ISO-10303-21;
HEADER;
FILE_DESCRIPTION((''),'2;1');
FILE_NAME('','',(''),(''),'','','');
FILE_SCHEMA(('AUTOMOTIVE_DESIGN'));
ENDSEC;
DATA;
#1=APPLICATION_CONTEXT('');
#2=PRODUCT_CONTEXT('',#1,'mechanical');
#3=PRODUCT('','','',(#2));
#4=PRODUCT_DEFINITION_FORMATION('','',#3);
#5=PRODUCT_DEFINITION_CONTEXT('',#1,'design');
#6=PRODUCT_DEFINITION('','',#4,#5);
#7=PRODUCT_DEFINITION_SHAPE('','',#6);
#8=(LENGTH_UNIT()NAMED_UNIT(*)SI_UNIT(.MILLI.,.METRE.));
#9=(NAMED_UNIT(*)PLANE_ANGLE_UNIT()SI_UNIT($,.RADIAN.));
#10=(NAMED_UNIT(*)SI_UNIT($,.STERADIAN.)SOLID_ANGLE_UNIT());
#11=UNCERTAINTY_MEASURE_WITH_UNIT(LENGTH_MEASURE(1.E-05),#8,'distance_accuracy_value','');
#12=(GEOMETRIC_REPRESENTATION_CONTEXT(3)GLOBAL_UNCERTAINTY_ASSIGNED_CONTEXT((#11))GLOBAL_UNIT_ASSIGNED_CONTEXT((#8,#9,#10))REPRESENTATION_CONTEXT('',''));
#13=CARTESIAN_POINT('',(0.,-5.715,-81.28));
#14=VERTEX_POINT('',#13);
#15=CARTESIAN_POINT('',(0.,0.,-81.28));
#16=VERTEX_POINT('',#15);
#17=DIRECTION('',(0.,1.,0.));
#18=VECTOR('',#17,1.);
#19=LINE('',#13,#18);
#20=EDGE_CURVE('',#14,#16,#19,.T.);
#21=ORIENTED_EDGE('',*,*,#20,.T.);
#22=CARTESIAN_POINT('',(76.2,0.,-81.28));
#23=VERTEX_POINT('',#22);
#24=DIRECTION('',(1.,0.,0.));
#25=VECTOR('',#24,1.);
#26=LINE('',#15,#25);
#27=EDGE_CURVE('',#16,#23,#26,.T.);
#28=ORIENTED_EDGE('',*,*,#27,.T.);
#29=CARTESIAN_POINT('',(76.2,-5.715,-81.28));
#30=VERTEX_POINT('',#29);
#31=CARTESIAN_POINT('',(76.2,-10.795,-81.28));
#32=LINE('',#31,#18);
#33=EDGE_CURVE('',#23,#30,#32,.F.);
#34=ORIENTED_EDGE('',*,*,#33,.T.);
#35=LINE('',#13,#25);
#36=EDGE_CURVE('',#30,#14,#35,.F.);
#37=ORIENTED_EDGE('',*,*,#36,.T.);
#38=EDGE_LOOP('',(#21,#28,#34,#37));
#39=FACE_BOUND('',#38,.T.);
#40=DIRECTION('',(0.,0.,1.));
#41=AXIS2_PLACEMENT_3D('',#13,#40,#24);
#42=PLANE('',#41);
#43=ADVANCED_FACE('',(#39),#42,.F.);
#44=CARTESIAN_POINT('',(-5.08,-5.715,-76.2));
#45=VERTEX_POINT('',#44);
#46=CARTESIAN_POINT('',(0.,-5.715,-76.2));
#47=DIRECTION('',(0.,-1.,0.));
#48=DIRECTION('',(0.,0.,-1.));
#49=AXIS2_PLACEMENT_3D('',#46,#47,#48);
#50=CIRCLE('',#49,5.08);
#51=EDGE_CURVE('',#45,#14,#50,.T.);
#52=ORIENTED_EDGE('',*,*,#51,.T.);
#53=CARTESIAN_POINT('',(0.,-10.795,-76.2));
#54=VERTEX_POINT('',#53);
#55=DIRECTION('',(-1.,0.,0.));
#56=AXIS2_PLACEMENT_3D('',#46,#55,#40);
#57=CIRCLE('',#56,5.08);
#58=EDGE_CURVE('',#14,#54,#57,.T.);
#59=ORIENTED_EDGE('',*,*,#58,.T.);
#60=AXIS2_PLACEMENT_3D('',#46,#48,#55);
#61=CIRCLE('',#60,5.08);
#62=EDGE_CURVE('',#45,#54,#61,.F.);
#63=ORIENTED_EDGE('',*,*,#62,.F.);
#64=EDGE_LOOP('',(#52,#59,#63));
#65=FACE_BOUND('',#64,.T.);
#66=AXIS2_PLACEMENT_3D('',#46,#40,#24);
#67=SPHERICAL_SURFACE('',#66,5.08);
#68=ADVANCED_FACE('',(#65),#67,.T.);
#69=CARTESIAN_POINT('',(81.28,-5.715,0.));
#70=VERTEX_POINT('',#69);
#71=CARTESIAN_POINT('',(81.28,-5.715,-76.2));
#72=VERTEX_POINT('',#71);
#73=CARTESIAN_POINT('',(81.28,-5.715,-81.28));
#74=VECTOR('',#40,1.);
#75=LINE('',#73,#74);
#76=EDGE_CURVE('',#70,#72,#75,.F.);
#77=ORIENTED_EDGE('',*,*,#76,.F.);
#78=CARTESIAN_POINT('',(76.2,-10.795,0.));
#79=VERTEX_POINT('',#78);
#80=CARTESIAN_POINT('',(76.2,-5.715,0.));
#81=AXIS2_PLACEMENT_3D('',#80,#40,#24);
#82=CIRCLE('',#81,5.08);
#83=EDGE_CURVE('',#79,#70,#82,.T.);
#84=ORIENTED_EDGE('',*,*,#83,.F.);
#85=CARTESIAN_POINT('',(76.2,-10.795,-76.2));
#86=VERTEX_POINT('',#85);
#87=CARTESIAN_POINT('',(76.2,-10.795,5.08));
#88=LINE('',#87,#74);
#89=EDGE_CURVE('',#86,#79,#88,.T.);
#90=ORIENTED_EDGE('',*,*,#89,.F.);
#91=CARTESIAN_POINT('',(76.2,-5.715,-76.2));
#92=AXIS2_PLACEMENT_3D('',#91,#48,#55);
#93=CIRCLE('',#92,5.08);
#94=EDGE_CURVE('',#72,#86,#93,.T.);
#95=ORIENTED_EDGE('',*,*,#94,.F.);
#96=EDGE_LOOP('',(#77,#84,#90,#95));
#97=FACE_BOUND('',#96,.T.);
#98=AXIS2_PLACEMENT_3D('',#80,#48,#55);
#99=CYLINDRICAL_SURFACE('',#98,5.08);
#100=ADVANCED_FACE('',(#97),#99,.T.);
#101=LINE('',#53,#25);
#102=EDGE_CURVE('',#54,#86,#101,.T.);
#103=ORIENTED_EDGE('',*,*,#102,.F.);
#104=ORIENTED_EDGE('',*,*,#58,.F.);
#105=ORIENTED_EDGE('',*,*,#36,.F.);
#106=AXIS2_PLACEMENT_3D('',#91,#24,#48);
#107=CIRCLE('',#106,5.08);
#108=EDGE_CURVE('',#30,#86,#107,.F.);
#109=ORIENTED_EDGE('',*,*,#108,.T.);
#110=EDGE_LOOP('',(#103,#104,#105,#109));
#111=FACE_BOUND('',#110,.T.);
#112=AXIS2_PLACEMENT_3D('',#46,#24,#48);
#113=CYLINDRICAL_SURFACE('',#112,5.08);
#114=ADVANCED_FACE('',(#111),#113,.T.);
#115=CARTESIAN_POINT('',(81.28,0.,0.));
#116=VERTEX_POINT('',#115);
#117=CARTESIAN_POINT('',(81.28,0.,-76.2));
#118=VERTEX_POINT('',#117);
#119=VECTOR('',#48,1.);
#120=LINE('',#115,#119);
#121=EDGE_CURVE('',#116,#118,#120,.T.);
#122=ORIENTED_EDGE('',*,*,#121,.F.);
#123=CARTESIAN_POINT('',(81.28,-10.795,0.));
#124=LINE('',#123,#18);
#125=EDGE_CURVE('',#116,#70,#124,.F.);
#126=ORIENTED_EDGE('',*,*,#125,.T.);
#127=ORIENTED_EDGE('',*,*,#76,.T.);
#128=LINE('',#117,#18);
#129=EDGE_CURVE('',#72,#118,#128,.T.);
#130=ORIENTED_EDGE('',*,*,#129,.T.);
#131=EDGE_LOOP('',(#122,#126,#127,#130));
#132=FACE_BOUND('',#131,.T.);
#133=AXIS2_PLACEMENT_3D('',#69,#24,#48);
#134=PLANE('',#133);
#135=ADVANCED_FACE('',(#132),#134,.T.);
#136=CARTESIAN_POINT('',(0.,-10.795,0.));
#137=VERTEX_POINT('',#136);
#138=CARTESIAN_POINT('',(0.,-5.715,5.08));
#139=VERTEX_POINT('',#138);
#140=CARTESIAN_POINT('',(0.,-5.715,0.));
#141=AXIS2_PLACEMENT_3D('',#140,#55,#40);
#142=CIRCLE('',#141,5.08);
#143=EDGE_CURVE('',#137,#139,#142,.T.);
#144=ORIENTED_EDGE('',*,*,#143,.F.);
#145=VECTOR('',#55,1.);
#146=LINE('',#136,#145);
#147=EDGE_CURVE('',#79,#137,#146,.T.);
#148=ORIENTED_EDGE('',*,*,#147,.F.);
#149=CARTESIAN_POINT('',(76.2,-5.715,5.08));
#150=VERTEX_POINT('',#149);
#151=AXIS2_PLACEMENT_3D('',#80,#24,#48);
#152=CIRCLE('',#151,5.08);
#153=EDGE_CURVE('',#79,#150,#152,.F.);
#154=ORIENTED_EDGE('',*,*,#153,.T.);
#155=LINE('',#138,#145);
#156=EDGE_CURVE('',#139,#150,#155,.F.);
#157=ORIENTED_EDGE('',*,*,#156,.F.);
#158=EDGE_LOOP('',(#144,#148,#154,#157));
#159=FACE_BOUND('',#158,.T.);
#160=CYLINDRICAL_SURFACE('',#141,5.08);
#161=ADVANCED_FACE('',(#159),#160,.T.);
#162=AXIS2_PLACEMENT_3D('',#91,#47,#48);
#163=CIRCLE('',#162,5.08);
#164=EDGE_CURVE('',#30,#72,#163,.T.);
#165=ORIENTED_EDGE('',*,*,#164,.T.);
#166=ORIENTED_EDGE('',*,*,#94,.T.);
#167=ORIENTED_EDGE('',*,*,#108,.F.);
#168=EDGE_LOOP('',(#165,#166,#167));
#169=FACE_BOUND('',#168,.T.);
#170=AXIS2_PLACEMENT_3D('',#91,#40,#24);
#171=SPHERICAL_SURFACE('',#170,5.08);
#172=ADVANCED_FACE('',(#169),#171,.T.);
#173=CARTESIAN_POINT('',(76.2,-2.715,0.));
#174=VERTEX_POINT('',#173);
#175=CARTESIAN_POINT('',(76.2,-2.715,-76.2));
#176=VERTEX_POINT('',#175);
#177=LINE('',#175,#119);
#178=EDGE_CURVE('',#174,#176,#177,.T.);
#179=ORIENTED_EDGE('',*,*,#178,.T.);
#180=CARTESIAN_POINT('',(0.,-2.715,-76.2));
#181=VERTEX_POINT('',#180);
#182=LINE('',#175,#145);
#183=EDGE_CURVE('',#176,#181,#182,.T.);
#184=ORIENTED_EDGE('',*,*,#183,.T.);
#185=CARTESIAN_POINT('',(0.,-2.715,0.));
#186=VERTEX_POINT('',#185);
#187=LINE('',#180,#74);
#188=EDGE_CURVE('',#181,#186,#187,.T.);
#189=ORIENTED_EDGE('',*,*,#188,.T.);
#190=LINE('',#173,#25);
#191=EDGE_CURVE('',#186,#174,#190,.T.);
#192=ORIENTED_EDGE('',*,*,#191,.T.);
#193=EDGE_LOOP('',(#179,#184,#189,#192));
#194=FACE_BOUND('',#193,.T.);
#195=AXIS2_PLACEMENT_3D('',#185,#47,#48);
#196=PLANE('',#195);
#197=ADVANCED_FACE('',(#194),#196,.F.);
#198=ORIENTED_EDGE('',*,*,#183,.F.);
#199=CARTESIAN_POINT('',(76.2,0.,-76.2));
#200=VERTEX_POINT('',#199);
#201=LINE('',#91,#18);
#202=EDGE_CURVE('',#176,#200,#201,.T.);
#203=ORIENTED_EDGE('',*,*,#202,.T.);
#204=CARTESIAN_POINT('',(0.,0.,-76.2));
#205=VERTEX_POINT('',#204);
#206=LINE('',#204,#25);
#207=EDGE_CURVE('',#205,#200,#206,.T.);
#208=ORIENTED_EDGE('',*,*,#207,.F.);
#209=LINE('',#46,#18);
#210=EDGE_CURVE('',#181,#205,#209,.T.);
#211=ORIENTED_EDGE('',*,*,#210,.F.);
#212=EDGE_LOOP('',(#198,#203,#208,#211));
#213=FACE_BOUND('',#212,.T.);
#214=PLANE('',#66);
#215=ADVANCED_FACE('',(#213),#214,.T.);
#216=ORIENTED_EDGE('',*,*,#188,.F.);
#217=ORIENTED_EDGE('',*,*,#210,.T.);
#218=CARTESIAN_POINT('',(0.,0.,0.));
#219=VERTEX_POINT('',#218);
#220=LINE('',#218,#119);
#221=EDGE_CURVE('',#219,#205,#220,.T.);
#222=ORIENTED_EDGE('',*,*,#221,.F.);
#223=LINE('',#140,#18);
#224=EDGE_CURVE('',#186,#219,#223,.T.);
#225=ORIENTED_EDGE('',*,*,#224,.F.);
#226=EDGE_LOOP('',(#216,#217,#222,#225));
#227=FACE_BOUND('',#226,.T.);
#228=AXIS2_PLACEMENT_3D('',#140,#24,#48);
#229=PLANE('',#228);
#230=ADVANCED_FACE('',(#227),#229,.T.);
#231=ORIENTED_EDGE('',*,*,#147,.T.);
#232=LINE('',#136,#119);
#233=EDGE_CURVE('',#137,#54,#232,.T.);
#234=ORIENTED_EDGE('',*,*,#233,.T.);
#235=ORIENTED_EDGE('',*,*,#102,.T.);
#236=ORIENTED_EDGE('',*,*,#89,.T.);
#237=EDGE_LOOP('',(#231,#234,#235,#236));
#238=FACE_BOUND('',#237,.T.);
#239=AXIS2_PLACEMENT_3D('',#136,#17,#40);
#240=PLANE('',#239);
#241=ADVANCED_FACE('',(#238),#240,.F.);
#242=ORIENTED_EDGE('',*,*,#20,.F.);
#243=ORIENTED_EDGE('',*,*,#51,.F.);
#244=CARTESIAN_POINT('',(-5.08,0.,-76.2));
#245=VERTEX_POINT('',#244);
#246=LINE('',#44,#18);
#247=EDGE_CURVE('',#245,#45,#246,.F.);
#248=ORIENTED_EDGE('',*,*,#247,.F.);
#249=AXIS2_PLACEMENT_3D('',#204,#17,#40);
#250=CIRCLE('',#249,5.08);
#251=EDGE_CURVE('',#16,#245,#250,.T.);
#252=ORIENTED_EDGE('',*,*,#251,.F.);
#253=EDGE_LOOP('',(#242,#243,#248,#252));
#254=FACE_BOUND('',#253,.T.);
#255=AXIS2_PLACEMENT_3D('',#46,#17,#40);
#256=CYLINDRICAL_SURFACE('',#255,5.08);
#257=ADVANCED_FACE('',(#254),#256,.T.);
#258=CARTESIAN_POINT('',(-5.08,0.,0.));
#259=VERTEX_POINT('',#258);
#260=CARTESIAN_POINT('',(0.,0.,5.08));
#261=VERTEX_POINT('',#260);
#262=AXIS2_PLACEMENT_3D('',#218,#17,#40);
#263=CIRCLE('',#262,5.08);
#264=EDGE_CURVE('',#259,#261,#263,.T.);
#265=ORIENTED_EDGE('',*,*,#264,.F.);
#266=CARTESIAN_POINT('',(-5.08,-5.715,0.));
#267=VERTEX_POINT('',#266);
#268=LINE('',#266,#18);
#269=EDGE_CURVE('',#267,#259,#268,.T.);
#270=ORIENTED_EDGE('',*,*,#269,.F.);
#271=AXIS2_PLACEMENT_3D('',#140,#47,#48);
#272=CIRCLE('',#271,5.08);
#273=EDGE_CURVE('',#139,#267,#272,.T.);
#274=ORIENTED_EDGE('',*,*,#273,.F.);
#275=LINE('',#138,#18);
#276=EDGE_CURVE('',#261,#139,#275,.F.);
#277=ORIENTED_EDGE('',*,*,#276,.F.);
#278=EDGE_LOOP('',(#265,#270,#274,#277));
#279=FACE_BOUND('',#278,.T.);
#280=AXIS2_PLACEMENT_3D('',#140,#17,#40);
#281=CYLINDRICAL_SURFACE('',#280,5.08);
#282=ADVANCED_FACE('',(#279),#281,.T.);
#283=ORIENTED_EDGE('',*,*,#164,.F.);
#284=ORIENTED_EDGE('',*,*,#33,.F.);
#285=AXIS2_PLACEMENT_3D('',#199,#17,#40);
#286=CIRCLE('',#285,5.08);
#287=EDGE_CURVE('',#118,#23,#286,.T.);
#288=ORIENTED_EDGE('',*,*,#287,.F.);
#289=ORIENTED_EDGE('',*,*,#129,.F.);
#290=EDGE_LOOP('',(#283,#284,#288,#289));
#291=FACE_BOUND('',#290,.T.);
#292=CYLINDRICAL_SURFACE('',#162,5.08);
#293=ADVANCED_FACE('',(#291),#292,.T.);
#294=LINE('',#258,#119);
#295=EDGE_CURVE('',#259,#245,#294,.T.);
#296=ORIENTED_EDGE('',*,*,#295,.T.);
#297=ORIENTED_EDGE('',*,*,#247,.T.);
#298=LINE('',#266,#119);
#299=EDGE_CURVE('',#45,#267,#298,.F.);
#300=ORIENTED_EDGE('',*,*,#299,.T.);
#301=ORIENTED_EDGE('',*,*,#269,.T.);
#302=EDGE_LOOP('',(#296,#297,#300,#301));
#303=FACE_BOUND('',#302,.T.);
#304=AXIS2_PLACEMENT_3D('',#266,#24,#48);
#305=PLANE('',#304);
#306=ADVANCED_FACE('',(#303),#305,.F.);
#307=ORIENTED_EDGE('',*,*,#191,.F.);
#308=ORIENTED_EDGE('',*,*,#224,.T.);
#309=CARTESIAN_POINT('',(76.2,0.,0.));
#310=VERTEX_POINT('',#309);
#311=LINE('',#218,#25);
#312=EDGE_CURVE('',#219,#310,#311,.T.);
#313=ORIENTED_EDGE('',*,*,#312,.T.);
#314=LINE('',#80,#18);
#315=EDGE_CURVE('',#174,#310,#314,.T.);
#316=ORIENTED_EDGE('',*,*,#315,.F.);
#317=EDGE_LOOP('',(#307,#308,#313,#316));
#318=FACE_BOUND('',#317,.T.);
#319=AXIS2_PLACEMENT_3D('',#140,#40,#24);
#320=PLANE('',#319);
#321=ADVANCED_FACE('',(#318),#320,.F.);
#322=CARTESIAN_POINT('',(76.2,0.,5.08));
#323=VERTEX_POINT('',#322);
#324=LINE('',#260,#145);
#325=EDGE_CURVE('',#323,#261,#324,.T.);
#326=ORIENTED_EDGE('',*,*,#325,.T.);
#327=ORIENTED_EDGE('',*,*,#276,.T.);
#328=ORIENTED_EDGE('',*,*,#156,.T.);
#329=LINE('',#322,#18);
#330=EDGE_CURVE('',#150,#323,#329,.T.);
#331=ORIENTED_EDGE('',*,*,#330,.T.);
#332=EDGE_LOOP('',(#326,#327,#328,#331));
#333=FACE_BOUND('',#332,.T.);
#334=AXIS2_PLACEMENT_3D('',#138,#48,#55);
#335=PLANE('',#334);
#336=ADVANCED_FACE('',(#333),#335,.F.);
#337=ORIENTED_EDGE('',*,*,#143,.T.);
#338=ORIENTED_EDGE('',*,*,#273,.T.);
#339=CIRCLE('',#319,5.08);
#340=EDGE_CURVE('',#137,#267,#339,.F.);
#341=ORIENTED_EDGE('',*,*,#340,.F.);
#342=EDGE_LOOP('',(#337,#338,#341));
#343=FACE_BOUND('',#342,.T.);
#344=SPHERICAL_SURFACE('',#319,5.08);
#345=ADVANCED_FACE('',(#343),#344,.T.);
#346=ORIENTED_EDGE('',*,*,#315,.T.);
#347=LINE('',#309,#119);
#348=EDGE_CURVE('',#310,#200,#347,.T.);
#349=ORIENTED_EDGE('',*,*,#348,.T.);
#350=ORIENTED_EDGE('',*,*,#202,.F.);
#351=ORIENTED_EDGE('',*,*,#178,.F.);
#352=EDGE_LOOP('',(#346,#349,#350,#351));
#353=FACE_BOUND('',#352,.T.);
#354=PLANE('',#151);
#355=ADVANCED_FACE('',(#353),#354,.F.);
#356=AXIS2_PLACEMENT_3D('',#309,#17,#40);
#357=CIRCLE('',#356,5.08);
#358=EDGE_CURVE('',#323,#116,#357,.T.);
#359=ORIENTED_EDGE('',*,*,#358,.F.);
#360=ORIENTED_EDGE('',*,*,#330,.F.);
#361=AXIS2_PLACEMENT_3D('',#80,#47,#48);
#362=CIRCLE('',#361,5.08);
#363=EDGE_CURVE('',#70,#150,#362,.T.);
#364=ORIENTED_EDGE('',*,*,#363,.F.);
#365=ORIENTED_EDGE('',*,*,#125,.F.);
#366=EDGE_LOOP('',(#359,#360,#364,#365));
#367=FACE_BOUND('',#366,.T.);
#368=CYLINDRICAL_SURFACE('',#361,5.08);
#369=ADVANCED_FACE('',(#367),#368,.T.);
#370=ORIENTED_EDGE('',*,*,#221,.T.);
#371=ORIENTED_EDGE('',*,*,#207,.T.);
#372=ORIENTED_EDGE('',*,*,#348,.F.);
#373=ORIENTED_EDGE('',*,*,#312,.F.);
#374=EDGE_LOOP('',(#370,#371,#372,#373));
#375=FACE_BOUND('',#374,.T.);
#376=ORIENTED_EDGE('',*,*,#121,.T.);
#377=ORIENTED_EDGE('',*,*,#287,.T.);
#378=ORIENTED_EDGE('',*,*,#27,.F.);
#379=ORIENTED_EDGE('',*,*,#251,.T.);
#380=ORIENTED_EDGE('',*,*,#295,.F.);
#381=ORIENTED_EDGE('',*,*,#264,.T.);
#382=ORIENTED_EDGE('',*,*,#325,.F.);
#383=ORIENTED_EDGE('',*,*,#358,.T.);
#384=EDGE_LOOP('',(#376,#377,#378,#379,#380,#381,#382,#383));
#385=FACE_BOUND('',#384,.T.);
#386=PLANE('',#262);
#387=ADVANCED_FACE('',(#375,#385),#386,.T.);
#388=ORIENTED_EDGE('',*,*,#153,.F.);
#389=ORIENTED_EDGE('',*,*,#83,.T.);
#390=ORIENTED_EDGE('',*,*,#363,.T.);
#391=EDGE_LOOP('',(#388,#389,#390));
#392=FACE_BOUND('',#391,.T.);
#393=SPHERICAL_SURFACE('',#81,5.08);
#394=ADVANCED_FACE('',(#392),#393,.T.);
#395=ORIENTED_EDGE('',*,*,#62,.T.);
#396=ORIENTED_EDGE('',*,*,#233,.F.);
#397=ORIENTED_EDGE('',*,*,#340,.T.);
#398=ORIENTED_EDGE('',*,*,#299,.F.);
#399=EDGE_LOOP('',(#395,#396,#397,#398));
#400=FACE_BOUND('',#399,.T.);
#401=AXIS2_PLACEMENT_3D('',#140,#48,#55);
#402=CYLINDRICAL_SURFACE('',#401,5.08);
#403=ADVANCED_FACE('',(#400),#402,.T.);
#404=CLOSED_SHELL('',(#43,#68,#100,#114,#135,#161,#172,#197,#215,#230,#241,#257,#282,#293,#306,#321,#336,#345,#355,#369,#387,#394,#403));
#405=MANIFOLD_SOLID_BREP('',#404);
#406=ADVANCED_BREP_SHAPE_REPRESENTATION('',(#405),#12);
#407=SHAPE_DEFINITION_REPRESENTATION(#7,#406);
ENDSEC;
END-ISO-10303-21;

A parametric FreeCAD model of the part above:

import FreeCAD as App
import Part
import Sketcher
from FreeCAD import Vector
Q = App.Units.Quantity


def edges_at(feature, points):
    """Names of the edges that pass closest to the given points."""
    edges = feature.Shape.Edges
    near = lambda p: min(range(len(edges)), key=lambda i: edges[i].distToShape(Part.Vertex(*p))[0])
    return sorted({f"Edge{near(p) + 1}" for p in points})

doc = App.newDocument("Part")
body = doc.addObject("PartDesign::Body", "Body")

sketch1 = doc.addObject("Sketcher::SketchObject", "Sketch")
body.addObject(sketch1)
sketch1.AttachmentSupport = (doc.XZ_Plane, [""])
sketch1.MapMode = "FlatFace"
sketch1.addGeometry([
    Part.LineSegment(Vector(81, 5, 0), Vector(81, -81, 0)),
    Part.LineSegment(Vector(81, -81, 0), Vector(-5, -81, 0)),
    Part.LineSegment(Vector(-5, -81, 0), Vector(-5, 5, 0)),
    Part.LineSegment(Vector(-5, 5, 0), Vector(81, 5, 0)),
    Part.LineSegment(Vector(0, -76, 0), Vector(76, -76, 0)),
    Part.LineSegment(Vector(76, -76, 0), Vector(76, 0, 0)),
    Part.LineSegment(Vector(76, 0, 0), Vector(0, 0, 0)),
    Part.LineSegment(Vector(0, 0, 0), Vector(0, -76, 0)),
], False)
sketch1.addConstraint([
    Sketcher.Constraint("Coincident", 0, 2, 1, 1),
    Sketcher.Constraint("Coincident", 1, 2, 2, 1),
    Sketcher.Constraint("Coincident", 2, 2, 3, 1),
    Sketcher.Constraint("Coincident", 3, 2, 0, 1),
    Sketcher.Constraint("Coincident", 4, 2, 5, 1),
    Sketcher.Constraint("Coincident", 5, 2, 6, 1),
    Sketcher.Constraint("Coincident", 6, 2, 7, 1),
    Sketcher.Constraint("Coincident", 7, 2, 4, 1),
    Sketcher.Constraint("Vertical", 0),
    Sketcher.Constraint("Horizontal", 1),
    Sketcher.Constraint("Vertical", 2),
    Sketcher.Constraint("Horizontal", 3),
    Sketcher.Constraint("Horizontal", 4),
    Sketcher.Constraint("Vertical", 5),
    Sketcher.Constraint("Horizontal", 6),
    Sketcher.Constraint("Vertical", 7),
    Sketcher.Constraint("Coincident", 6, 2, -1, 1),
    Sketcher.Constraint("Equal", 3, 0),
    Sketcher.Constraint("Equal", 6, 5),
    Sketcher.Constraint("DistanceX", 4, 1, 4, 2, Q("3 in")),
    Sketcher.Constraint("DistanceX", 1, 2, 1, 1, Q("3.4 in")),
    Sketcher.Constraint("DistanceX", -1, 1, 0, 2, Q("3.2 in")),
    Sketcher.Constraint("DistanceY", 0, 2, -1, 1, Q("3.2 in")),
])
pad1 = doc.addObject("PartDesign::Pad", "Pad")
body.addObject(pad1)
pad1.Profile = sketch1
pad1.Length = Q("0.225 in")

sketch2 = doc.addObject("Sketcher::SketchObject", "Sketch001")
body.addObject(sketch2)
sketch2.AttachmentSupport = (doc.XZ_Plane, [""])
sketch2.MapMode = "FlatFace"
sketch2.AttachmentOffset = App.Placement(Vector(0, 0, 0.225 * 25.4), App.Rotation())
sketch2.addGeometry([
    Part.LineSegment(Vector(81, -81, 0), Vector(81, 5, 0)),
    Part.LineSegment(Vector(81, 5, 0), Vector(-5, 5, 0)),
    Part.LineSegment(Vector(-5, 5, 0), Vector(-5, -81, 0)),
    Part.LineSegment(Vector(-5, -81, 0), Vector(81, -81, 0)),
], False)
sketch2.addConstraint([
    Sketcher.Constraint("Coincident", 0, 2, 1, 1),
    Sketcher.Constraint("Coincident", 1, 2, 2, 1),
    Sketcher.Constraint("Coincident", 2, 2, 3, 1),
    Sketcher.Constraint("Coincident", 3, 2, 0, 1),
    Sketcher.Constraint("Vertical", 0),
    Sketcher.Constraint("Horizontal", 1),
    Sketcher.Constraint("Vertical", 2),
    Sketcher.Constraint("Horizontal", 3),
    Sketcher.Constraint("Equal", 3, 0),
    Sketcher.Constraint("DistanceX", 1, 2, 1, 1, Q("3.4 in")),
    Sketcher.Constraint("DistanceX", -1, 1, 0, 2, Q("3.2 in")),
    Sketcher.Constraint("DistanceY", -1, 1, 0, 2, Q("0.2 in")),
])
pad2 = doc.addObject("PartDesign::Pad", "Pad001")
body.addObject(pad2)
pad2.Profile = sketch2
pad2.Length = Q("0.2 in")
doc.recompute()

fillet = doc.addObject("PartDesign::Fillet", "Fillet")
body.addObject(fillet)
fillet.Base = (pad2, edges_at(pad2, [
    (-5.08, -5.397, 5.08),
    (-5.08, -5.397, -81.28),
    (81.28, -5.397, -81.28),
    (81.28, -5.397, 5.08),
    (-5.08, -10.795, -38.1),
    (38.1, -10.795, -81.28),
    (81.28, -10.795, -38.1),
    (38.1, -10.795, 5.08),
]))
fillet.Radius = Q("0.2 in")

sketch3 = doc.addObject("Sketcher::SketchObject", "Sketch002")
body.addObject(sketch3)
sketch3.AttachmentSupport = (doc.XZ_Plane, [""])
sketch3.MapMode = "FlatFace"
sketch3.AttachmentOffset = App.Placement(Vector(0, 0, 0.225 * 25.4), App.Rotation())
sketch3.addGeometry([
    Part.LineSegment(Vector(0, -76, 0), Vector(0, 0, 0)),
    Part.LineSegment(Vector(0, 0, 0), Vector(76, 0, 0)),
    Part.LineSegment(Vector(76, 0, 0), Vector(76, -76, 0)),
    Part.LineSegment(Vector(76, -76, 0), Vector(0, -76, 0)),
], False)
sketch3.addConstraint([
    Sketcher.Constraint("Coincident", 0, 2, 1, 1),
    Sketcher.Constraint("Coincident", 1, 2, 2, 1),
    Sketcher.Constraint("Coincident", 2, 2, 3, 1),
    Sketcher.Constraint("Coincident", 3, 2, 0, 1),
    Sketcher.Constraint("Vertical", 0),
    Sketcher.Constraint("Horizontal", 1),
    Sketcher.Constraint("Vertical", 2),
    Sketcher.Constraint("Horizontal", 3),
    Sketcher.Constraint("Coincident", 0, 2, -1, 1),
    Sketcher.Constraint("Equal", 3, 0),
    Sketcher.Constraint("DistanceX", 1, 1, 1, 2, Q("3 in")),
])
pad3 = doc.addObject("PartDesign::Pad", "Pad002")
body.addObject(pad3)
pad3.Profile = sketch3
pad3.Length = 3
pad3.Reversed = True

doc.recompute()
